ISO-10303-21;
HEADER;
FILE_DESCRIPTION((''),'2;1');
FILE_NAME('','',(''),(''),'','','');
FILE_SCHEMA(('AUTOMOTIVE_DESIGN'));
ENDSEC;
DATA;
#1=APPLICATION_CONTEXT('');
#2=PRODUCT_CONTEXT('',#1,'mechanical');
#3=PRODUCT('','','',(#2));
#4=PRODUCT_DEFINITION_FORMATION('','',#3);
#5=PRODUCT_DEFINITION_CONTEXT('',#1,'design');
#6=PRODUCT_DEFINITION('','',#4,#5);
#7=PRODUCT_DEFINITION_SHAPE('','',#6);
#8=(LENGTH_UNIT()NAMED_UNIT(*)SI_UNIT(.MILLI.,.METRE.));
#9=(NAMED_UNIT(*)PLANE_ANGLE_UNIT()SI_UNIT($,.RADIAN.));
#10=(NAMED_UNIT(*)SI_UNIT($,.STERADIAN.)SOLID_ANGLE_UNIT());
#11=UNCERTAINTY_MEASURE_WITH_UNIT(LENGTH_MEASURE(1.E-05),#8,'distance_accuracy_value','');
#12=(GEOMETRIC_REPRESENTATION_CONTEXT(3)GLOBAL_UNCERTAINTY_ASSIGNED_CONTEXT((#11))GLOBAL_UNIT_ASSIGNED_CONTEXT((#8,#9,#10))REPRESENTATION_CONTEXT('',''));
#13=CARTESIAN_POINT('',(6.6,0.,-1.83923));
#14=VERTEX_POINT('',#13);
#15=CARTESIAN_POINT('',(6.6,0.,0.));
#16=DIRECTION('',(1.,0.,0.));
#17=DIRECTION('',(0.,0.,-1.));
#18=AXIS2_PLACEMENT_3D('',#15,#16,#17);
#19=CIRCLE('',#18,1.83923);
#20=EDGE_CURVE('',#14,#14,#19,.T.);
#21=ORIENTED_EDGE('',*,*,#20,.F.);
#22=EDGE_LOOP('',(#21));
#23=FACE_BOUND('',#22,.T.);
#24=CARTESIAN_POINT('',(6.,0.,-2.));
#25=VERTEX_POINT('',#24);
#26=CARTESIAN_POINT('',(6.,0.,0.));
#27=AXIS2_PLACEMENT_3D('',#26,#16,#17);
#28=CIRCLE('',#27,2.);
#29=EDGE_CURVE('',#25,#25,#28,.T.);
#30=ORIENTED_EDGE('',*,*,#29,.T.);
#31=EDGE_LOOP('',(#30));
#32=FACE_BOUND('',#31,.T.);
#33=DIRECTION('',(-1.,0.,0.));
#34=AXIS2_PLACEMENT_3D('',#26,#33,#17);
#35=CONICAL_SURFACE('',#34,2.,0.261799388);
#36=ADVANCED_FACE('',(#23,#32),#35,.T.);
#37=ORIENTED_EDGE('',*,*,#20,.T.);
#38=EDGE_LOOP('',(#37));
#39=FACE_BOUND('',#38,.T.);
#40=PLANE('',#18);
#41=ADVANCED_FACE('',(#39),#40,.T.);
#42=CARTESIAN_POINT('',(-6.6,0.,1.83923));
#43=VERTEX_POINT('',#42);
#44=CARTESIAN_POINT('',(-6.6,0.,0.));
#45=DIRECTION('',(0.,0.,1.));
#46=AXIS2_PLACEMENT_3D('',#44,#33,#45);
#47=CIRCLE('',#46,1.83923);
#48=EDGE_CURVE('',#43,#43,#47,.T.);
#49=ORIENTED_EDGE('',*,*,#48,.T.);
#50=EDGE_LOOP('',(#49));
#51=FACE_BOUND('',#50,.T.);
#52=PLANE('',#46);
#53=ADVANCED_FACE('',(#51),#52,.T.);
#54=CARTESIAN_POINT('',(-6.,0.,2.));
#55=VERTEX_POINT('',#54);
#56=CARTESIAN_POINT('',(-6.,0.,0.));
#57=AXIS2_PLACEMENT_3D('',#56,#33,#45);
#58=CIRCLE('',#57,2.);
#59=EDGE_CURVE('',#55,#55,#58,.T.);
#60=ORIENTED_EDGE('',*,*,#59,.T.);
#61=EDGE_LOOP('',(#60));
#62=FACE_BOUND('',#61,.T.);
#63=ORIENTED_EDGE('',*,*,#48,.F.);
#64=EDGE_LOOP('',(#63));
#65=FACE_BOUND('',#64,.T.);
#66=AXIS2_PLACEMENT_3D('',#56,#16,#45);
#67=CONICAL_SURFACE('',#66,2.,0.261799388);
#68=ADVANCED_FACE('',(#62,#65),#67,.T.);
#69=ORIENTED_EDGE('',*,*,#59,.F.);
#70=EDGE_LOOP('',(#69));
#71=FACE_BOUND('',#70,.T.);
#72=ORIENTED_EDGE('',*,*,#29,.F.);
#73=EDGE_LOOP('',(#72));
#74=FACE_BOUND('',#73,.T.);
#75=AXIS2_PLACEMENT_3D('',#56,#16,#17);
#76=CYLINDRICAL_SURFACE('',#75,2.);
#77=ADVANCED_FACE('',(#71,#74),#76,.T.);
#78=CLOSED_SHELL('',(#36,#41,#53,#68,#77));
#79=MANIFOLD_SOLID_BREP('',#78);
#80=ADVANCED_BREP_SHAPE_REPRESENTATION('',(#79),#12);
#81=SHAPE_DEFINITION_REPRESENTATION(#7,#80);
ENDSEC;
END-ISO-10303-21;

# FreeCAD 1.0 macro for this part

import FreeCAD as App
import Part
import Sketcher
from FreeCAD import Vector

doc = App.newDocument("Part")
body = doc.addObject("PartDesign::Body", "Body")

# Sketch on YZ plane
sketch1 = body.newObject("Sketcher::SketchObject", "Sketch")
sketch1.AttachmentSupport = (doc.getObject("YZ_Plane"), [""])
sketch1.MapMode = "FlatFace"
sketch1.addGeometry(Part.Circle(Vector(0, 0, 0), Vector(0, 0, 1), 2), False)
sketch1.addConstraint([
    Sketcher.Constraint("Coincident", 0, 3, -1, 1),
    Sketcher.Constraint("Diameter", 0, 4.0),
])
pad1 = body.newObject("PartDesign::Pad", "Pad")
pad1.Profile = sketch1
pad1.Type = "TwoLengths"
pad1.Length = 6
pad1.Length2 = 6

# Sketch on YZ plane
sketch2 = body.newObject("Sketcher::SketchObject", "Sketch001")
sketch2.AttachmentSupport = (doc.getObject("YZ_Plane"), [""])
sketch2.MapMode = "FlatFace"
sketch2.AttachmentOffset = App.Placement(Vector(0, 0, 6), App.Rotation())
sketch2.addGeometry(Part.Circle(Vector(0, 0, 0), Vector(0, 0, 1), 2), False)
sketch2.addConstraint([
    Sketcher.Constraint("Coincident", 0, 3, -1, 1),
    Sketcher.Constraint("Diameter", 0, 4.0),
])
pad2 = body.newObject("PartDesign::Pad", "Pad001")
pad2.Profile = sketch2
pad2.Length = 0.6
pad2.TaperAngle = -15

# Sketch on YZ plane
sketch3 = body.newObject("Sketcher::SketchObject", "Sketch002")
sketch3.AttachmentSupport = (doc.getObject("YZ_Plane"), [""])
sketch3.MapMode = "FlatFace"
sketch3.AttachmentOffset = App.Placement(Vector(0, 0, -6), App.Rotation())
sketch3.addGeometry(Part.Circle(Vector(0, 0, 0), Vector(0, 0, 1), 2), False)
sketch3.addConstraint([
    Sketcher.Constraint("Coincident", 0, 3, -1, 1),
    Sketcher.Constraint("Diameter", 0, 4.0),
])
pad3 = body.newObject("PartDesign::Pad", "Pad002")
pad3.Profile = sketch3
pad3.Length = 0.6
pad3.Reversed = True
pad3.TaperAngle = -15

doc.recompute()
